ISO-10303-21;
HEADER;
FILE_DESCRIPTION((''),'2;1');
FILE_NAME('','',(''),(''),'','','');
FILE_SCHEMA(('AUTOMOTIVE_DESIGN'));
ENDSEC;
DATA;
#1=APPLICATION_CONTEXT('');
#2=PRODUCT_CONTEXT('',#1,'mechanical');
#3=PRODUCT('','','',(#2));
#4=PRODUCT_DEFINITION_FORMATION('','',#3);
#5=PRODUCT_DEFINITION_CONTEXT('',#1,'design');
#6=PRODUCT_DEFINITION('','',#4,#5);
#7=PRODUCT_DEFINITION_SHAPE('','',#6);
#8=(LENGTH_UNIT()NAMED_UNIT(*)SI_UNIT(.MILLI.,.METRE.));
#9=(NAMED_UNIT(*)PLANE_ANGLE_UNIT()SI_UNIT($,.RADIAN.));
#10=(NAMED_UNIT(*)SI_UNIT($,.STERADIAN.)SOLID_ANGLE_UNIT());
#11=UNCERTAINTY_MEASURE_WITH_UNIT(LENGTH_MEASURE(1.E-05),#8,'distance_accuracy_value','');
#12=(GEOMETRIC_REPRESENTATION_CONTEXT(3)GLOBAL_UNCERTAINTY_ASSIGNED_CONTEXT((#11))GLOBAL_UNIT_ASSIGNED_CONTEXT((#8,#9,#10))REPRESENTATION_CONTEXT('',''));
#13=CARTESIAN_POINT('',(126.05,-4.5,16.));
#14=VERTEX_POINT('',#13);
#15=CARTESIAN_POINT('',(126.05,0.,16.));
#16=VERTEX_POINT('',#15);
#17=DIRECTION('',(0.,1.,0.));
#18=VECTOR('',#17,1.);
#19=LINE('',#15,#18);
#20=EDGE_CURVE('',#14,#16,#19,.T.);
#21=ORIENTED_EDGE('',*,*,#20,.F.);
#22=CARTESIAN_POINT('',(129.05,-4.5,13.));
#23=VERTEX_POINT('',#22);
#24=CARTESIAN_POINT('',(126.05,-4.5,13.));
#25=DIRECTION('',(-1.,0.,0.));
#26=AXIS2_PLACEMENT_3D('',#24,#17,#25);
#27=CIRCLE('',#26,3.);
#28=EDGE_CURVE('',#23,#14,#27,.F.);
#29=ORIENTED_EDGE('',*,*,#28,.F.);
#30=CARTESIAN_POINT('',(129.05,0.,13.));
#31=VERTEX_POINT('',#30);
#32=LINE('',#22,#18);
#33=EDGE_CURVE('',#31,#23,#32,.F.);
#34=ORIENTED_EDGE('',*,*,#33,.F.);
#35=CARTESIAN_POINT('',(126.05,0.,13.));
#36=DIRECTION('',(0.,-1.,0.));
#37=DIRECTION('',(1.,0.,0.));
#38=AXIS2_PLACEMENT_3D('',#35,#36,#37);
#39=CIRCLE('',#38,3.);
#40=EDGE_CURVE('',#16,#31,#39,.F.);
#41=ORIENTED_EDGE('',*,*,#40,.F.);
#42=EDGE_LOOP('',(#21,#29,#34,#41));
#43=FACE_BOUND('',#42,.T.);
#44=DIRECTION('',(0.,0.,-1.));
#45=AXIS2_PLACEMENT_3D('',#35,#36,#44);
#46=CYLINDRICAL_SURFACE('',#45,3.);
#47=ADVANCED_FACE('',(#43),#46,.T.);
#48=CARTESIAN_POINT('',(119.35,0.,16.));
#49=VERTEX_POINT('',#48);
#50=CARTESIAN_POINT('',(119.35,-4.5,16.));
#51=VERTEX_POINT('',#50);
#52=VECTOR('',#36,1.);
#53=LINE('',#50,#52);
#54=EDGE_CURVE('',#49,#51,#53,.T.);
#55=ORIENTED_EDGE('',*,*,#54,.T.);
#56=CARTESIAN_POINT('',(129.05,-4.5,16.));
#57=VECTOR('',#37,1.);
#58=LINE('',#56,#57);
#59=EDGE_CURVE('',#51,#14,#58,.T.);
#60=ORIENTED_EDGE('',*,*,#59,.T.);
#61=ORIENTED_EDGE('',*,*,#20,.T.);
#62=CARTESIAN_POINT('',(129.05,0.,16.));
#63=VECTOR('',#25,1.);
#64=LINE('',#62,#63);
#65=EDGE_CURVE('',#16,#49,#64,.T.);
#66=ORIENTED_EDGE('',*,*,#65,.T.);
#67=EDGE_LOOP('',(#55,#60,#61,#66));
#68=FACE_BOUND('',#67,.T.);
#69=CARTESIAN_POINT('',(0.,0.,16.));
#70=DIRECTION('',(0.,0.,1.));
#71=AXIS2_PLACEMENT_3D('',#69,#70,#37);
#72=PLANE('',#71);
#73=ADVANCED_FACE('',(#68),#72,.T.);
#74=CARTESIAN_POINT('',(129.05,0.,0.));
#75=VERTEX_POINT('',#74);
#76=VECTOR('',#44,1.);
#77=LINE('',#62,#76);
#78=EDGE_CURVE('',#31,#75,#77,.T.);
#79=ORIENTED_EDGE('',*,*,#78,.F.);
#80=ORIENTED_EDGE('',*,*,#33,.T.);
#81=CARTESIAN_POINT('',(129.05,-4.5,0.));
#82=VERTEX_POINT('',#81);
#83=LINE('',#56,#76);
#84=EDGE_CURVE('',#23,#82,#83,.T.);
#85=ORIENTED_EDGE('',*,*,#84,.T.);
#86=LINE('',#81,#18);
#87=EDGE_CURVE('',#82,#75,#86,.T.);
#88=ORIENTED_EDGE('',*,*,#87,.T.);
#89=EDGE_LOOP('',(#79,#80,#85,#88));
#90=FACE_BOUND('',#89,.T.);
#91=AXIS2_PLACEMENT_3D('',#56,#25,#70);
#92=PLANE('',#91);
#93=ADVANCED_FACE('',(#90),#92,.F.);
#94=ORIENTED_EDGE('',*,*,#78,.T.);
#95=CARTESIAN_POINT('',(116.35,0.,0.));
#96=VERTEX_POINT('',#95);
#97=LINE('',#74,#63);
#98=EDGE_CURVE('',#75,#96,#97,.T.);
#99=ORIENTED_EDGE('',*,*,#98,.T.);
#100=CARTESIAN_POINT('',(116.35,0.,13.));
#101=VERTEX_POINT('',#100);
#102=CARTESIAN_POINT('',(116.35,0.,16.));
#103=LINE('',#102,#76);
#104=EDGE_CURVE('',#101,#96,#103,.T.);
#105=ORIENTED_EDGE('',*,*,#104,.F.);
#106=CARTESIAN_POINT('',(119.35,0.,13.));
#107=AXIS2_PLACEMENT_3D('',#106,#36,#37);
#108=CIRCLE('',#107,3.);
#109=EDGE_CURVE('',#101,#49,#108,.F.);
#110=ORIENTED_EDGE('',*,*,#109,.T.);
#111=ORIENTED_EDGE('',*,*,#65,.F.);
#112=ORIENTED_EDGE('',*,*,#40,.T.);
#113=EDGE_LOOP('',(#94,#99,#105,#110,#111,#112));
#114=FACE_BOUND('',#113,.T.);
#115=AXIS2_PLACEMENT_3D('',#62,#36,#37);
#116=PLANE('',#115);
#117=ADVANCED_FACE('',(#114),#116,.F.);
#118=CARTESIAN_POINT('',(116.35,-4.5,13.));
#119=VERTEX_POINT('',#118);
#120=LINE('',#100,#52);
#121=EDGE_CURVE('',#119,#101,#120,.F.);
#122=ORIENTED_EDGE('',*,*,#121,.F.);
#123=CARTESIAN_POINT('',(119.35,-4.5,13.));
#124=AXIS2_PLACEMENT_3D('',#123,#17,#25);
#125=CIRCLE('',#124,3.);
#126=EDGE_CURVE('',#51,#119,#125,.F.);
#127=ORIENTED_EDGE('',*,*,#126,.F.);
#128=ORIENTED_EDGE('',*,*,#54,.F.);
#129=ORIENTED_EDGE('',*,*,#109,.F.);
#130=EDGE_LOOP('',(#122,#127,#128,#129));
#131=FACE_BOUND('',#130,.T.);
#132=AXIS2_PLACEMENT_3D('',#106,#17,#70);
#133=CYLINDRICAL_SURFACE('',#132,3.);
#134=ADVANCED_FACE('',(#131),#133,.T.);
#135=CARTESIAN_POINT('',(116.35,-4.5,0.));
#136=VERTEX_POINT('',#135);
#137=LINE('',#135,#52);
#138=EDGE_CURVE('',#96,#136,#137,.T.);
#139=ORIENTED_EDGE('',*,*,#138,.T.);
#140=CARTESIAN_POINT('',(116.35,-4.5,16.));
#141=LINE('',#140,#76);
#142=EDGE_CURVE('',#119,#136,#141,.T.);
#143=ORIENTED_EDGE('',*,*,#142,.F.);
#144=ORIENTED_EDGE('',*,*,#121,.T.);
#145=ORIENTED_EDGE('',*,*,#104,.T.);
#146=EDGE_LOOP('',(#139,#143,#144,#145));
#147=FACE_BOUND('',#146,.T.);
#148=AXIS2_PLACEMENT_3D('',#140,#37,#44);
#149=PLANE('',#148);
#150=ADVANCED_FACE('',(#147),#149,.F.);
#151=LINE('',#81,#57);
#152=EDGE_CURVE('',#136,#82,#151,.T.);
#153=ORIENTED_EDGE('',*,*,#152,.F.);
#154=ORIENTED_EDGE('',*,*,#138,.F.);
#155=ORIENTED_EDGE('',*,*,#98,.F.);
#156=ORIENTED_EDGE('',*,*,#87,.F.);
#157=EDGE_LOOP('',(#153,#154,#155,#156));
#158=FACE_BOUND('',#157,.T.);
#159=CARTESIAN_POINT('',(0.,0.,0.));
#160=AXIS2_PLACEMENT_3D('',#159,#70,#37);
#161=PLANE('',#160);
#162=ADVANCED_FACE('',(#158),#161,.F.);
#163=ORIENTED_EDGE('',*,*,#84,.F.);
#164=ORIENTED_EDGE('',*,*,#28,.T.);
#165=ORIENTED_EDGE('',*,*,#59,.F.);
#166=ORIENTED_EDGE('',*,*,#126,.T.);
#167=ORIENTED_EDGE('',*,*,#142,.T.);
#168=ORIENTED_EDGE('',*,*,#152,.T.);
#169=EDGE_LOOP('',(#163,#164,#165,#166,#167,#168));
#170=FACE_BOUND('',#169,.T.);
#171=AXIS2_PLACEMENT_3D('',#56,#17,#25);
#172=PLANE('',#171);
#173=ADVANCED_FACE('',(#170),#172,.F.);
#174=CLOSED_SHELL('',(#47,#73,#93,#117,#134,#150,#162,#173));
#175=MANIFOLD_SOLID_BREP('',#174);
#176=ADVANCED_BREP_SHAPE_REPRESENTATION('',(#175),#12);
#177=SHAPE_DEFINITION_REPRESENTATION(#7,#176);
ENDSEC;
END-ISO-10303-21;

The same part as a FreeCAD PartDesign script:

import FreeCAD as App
import Part
import Sketcher
from FreeCAD import Vector
Q = App.Units.Quantity


def edges_at(feature, points):
    """Names of the edges that pass closest to the given points."""
    edges = feature.Shape.Edges
    near = lambda p: min(range(len(edges)), key=lambda i: edges[i].distToShape(Part.Vertex(*p))[0])
    return sorted({f"Edge{near(p) + 1}" for p in points})


def add_polygon(sketch, points):
    """Adds a closed chain of lines whose ends are joined by coincident constraints."""
    first, n = sketch.GeometryCount, len(points)
    for a, b in zip(points, points[1:] + points[:1]):
        sketch.addGeometry(Part.LineSegment(App.Vector(*a, 0), App.Vector(*b, 0)), False)
    for i in range(n):
        sketch.addConstraint(Sketcher.Constraint("Coincident", first + i, 2, first + (i + 1) % n, 1))

doc = App.newDocument("Part")
body = doc.addObject("PartDesign::Body", "Body")

# Sketch on XY plane
sketch1 = body.newObject("Sketcher::SketchObject", "Sketch")
sketch1.AttachmentSupport = (doc.getObject("XY_Plane"), [""])
sketch1.MapMode = "FlatFace"
add_polygon(sketch1, [(116.3, 0), (116.3, -4.5), (129.1, -4.5), (129.1, 0)])  # lines 0-3
sketch1.addConstraint([
    Sketcher.Constraint("Vertical", 0),
    Sketcher.Constraint("Horizontal", 1),
    Sketcher.Constraint("Vertical", 2),
    Sketcher.Constraint("Horizontal", 3),
    Sketcher.Constraint("PointOnObject", 2, 2, -1),
    Sketcher.Constraint("DistanceX", 1, 1, 1, 2, Q("12.7 mm")),
    Sketcher.Constraint("DistanceY", 0, 2, 0, 1, Q("4.5 mm")),
    Sketcher.Constraint("DistanceX", -1, 1, 0, 2, Q("116.35 mm")),
])
pad1 = body.newObject("PartDesign::Pad", "Pad")
pad1.Profile = sketch1
pad1.Length = 16
doc.recompute()

fillet = body.newObject("PartDesign::Fillet", "Fillet")
fillet.Base = (pad1, edges_at(pad1, [(129.05, -2.25, 16)]))
fillet.Radius = 3
doc.recompute()

fillet2 = body.newObject("PartDesign::Fillet", "Fillet001")
fillet2.Base = (fillet, edges_at(fillet, [(116.35, -2.25, 16)]))
fillet2.Radius = 3

doc.recompute()
